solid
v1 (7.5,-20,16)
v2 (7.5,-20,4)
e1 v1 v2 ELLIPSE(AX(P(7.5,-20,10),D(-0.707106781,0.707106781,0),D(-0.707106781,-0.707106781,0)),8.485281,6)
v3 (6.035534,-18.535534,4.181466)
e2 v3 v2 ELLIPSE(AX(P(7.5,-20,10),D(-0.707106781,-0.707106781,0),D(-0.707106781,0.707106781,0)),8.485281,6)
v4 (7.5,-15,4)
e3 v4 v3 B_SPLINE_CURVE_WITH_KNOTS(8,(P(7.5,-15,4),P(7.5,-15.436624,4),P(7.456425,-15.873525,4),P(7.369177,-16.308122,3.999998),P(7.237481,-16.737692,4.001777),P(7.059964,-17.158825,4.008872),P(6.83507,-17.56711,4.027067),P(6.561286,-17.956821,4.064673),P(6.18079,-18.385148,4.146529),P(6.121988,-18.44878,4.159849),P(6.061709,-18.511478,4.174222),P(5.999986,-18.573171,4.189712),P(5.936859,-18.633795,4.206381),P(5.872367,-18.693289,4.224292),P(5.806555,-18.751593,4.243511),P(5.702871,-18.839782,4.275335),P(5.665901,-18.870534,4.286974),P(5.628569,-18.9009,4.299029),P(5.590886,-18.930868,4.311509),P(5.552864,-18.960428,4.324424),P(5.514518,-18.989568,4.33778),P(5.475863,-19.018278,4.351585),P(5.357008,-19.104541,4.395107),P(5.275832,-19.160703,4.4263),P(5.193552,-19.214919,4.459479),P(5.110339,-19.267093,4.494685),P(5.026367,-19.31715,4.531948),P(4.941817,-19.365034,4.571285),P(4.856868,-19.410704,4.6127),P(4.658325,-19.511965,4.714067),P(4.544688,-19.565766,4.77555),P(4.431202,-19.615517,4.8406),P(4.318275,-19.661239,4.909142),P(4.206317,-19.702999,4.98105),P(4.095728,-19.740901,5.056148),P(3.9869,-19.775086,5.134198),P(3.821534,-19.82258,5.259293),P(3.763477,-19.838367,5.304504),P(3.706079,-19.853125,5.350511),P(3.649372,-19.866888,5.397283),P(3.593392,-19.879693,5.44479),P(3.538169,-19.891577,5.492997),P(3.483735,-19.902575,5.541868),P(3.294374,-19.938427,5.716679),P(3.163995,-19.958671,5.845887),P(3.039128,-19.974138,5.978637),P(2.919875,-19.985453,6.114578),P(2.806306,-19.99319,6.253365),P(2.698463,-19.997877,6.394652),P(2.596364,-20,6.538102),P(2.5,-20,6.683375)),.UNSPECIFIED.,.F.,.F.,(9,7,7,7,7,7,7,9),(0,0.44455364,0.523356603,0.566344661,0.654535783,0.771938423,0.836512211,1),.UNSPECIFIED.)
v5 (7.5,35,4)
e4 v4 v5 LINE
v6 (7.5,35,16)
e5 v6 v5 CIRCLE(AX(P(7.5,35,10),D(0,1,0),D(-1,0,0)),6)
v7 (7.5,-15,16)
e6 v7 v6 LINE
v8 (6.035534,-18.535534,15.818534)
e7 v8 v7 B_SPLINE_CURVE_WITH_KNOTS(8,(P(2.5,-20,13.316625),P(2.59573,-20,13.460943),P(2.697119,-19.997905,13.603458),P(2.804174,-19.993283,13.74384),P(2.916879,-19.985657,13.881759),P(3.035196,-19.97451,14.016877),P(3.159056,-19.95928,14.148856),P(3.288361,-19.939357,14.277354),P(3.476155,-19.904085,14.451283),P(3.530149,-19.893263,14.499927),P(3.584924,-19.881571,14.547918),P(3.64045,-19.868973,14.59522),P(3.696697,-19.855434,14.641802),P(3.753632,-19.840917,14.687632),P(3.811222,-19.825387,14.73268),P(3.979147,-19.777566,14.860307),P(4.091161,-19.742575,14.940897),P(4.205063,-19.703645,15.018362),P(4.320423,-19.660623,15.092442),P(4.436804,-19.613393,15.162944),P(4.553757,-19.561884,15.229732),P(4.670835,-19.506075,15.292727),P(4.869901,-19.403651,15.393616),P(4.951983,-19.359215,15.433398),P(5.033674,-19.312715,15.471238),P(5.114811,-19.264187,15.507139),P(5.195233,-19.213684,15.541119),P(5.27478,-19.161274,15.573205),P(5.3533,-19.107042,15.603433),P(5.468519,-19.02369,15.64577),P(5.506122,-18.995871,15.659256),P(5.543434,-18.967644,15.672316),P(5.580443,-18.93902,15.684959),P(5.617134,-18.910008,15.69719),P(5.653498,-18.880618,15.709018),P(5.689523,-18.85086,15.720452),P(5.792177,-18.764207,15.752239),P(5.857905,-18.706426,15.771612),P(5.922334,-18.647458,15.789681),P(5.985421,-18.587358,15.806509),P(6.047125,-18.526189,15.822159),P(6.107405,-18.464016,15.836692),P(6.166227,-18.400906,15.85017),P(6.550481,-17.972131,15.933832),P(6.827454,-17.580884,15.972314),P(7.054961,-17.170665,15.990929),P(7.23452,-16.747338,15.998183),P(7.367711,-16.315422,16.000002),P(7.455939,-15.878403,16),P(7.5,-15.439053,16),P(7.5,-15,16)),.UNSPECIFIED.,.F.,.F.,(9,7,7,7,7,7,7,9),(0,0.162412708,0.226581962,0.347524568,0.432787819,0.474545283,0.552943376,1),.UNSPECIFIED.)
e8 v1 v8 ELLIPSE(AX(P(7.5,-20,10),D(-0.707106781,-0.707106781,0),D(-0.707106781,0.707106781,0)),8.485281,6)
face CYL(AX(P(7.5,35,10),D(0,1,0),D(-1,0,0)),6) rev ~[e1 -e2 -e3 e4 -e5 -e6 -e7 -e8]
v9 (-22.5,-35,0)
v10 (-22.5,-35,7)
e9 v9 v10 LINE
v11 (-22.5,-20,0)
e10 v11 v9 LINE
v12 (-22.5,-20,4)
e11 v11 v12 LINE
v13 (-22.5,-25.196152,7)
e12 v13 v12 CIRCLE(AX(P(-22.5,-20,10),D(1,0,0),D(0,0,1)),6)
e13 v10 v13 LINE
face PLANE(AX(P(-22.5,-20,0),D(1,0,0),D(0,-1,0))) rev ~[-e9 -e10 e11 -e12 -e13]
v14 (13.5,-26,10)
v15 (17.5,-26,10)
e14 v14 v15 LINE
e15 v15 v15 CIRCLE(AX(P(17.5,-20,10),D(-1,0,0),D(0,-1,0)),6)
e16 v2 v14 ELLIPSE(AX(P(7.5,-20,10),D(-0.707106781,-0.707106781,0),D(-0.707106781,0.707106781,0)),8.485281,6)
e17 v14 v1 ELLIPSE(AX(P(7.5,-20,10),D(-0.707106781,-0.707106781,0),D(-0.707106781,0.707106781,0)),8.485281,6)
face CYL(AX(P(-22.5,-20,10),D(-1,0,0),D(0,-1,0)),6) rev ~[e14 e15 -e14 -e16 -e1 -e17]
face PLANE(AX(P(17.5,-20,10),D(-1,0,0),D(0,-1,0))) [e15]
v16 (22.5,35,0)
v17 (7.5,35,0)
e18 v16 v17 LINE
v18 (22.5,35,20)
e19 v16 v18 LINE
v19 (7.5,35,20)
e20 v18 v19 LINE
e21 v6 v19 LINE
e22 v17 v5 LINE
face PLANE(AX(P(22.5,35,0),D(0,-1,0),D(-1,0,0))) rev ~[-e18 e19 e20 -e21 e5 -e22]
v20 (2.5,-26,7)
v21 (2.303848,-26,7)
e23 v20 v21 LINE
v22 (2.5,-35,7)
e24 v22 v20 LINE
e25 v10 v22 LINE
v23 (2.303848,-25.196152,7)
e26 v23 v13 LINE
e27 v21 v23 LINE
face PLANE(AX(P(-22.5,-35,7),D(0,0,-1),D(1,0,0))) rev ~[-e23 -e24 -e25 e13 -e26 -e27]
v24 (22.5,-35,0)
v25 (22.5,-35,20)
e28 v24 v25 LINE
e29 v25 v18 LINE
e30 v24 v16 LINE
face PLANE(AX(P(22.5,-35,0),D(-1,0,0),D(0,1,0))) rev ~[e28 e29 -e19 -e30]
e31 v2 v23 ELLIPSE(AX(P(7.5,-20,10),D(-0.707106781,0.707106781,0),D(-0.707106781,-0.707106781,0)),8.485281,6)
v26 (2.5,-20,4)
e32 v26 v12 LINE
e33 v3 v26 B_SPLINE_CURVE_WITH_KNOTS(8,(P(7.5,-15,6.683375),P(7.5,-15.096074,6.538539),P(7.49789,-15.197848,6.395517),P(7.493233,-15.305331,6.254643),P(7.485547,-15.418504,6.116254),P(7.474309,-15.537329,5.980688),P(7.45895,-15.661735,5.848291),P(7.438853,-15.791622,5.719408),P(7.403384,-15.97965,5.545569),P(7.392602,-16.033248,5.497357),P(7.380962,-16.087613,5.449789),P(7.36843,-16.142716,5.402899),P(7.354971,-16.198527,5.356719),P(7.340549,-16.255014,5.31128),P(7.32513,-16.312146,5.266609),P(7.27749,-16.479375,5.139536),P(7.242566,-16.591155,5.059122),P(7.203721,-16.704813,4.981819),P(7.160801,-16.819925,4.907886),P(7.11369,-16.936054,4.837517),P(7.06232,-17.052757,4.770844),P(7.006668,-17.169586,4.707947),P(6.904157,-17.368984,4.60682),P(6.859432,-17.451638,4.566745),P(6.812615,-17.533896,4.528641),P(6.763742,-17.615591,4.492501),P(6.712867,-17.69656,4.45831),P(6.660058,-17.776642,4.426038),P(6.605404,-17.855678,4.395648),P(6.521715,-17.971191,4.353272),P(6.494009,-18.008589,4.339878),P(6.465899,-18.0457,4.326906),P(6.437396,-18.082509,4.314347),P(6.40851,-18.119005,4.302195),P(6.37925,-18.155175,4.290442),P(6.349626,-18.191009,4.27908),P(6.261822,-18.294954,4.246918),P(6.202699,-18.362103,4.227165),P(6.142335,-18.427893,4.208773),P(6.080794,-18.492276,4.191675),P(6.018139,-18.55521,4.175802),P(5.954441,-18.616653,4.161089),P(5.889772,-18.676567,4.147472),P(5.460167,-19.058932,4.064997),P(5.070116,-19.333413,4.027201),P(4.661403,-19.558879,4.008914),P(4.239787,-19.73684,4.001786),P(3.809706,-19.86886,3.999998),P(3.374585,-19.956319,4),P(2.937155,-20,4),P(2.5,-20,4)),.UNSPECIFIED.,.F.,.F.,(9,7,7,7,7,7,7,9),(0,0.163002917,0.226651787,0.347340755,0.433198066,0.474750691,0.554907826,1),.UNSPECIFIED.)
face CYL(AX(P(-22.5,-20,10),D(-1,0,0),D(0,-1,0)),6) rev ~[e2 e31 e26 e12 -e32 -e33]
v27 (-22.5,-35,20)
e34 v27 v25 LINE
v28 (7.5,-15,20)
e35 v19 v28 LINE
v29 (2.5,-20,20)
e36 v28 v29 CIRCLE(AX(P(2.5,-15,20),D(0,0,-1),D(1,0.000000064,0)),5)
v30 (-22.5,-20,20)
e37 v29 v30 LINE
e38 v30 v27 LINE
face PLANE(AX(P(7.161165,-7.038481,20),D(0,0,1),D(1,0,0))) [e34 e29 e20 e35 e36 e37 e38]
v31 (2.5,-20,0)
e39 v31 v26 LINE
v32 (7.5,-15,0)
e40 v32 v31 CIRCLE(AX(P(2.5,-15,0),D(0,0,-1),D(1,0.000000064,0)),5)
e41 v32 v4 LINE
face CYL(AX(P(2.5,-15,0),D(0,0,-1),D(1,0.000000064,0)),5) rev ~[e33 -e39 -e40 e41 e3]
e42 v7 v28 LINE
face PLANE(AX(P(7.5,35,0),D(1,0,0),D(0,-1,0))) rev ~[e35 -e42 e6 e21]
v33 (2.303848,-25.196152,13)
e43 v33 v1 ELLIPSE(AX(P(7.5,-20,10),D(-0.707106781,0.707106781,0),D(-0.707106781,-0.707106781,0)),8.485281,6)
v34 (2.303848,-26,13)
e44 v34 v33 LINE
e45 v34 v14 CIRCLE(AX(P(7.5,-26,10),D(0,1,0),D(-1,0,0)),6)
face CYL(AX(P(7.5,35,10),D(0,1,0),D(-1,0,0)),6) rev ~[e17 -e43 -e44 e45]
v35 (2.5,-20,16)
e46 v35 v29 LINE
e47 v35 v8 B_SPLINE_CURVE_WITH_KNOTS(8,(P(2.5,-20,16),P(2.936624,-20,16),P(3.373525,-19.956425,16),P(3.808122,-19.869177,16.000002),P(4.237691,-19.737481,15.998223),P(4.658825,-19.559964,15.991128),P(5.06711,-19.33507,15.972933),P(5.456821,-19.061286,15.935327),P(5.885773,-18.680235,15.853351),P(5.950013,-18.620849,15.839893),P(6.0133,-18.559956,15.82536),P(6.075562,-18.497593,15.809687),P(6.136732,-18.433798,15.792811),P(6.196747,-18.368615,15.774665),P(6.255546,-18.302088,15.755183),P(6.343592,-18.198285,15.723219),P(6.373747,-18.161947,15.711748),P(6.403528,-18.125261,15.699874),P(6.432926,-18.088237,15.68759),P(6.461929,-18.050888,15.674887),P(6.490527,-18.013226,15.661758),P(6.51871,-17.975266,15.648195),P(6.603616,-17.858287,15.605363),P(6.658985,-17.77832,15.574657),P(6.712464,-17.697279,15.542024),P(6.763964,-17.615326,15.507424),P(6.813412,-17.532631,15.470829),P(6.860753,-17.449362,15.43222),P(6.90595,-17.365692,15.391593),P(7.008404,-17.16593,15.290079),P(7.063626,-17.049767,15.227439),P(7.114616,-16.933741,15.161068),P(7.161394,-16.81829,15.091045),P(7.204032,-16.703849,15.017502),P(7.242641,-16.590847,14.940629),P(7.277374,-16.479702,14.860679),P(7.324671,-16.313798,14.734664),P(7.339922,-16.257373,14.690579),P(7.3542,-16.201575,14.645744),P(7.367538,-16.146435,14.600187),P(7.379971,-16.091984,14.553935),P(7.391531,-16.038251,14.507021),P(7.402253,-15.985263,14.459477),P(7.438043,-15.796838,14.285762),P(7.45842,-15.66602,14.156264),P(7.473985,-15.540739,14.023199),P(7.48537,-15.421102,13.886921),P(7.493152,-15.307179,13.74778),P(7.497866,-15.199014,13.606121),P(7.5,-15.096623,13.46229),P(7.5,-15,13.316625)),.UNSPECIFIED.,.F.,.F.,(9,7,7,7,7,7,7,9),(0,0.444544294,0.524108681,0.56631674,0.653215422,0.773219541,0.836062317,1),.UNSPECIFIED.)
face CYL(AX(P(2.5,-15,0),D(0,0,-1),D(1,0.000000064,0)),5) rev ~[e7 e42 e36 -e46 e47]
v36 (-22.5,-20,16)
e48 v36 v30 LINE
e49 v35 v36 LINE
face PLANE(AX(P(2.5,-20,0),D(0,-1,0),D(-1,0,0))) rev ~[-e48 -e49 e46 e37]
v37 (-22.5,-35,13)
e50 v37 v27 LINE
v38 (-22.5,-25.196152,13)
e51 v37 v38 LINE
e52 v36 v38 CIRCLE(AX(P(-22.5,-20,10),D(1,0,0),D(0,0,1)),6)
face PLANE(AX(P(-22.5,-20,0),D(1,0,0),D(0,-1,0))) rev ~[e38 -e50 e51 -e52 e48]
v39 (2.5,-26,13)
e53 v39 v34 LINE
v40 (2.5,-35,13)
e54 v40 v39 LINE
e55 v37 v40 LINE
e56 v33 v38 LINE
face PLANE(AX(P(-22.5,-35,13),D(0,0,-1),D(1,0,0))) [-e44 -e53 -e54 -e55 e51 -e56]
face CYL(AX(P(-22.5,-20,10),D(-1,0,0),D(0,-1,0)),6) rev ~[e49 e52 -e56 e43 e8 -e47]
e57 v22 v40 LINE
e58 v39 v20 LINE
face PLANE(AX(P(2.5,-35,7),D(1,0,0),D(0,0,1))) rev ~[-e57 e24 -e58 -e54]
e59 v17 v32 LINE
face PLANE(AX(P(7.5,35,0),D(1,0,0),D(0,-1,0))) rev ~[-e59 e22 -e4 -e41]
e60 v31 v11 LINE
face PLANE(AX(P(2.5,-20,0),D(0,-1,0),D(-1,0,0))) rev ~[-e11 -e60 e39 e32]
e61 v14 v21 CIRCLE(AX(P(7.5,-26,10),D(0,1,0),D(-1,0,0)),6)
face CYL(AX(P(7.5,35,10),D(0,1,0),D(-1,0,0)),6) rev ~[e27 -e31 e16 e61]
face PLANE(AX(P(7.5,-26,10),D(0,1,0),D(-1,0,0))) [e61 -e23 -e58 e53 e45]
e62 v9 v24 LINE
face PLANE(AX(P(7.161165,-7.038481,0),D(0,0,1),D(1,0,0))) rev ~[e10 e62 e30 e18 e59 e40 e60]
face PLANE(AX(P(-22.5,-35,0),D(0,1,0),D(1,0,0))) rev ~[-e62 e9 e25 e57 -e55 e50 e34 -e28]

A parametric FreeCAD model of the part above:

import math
import FreeCAD as App
import Part
import Sketcher

V = App.Vector
Q = App.Units.Quantity


def add_polygon(sketch, points):
    """Adds a closed chain of lines whose ends are joined by coincident constraints."""
    first, n = sketch.GeometryCount, len(points)
    for a, b in zip(points, points[1:] + points[:1]):
        sketch.addGeometry(Part.LineSegment(App.Vector(*a, 0), App.Vector(*b, 0)), False)
    for i in range(n):
        sketch.addConstraint(Sketcher.Constraint("Coincident", first + i, 2, first + (i + 1) % n, 1))

doc = App.newDocument("Part")
body = doc.addObject("PartDesign::Body", "Body")

sketch1 = body.newObject("Sketcher::SketchObject", "Sketch")
sketch1.AttachmentSupport = (doc.getObject("XY_Plane"), [""])
sketch1.MapMode = "FlatFace"
sketch1.addGeometry([
    Part.LineSegment(V(22.5, 35, 0), V(7.5, 35, 0)),
    Part.LineSegment(V(7.5, 35, 0), V(7.5, -15, 0)),
    Part.ArcOfCircle(Part.Circle(V(2.5, -15, 0), V(0, 0, 1), 5), math.radians(-90), math.radians(0)),
    Part.LineSegment(V(2.5, -20, 0), V(-22.5, -20, 0)),
    Part.LineSegment(V(-22.5, -20, 0), V(-22.5, -35, 0)),
    Part.LineSegment(V(-22.5, -35, 0), V(22.5, -35, 0)),
    Part.LineSegment(V(22.5, -35, 0), V(22.5, 35, 0)),
], False)
sketch1.addConstraint([
    Sketcher.Constraint("Coincident", 0, 2, 1, 1),
    Sketcher.Constraint("Tangent", 1, 2, 2, 2),
    Sketcher.Constraint("Tangent", 2, 1, 3, 1),
    Sketcher.Constraint("Coincident", 3, 2, 4, 1),
    Sketcher.Constraint("Coincident", 4, 2, 5, 1),
    Sketcher.Constraint("Coincident", 5, 2, 6, 1),
    Sketcher.Constraint("Coincident", 6, 2, 0, 1),
    Sketcher.Constraint("Horizontal", 0),
    Sketcher.Constraint("Vertical", 1),
    Sketcher.Constraint("Horizontal", 3),
    Sketcher.Constraint("Vertical", 4),
    Sketcher.Constraint("Horizontal", 5),
    Sketcher.Constraint("Vertical", 6),
    Sketcher.Constraint("Symmetric", 4, 2, 6, 2, -1, 1),
    Sketcher.Constraint("Equal", 0, 4),
    Sketcher.Constraint("Radius", 2, Q("5 mm")),
    Sketcher.Constraint("DistanceX", 0, 2, 0, 1, Q("15 mm")),
    Sketcher.Constraint("DistanceX", 3, 2, 3, 1, Q("25 mm")),
    Sketcher.Constraint("DistanceY", 1, 2, 1, 1, Q("50 mm")),
])
pad1 = body.newObject("PartDesign::Pad", "Pad")
pad1.Profile = sketch1
pad1.Length = 20

sketch2 = body.newObject("Sketcher::SketchObject", "Sketch001")
sketch2.AttachmentSupport = (doc.getObject("YZ_Plane"), [""])
sketch2.MapMode = "FlatFace"
sketch2.AttachmentOffset = App.Placement(V(0, 0, -22.5), App.Rotation())
sketch2.addGeometry(Part.Circle(V(-20, 10, 0), V(0, 0, 1), 6), False)
sketch2.addConstraint([
    Sketcher.Constraint("Diameter", 0, Q("12 mm")),
    Sketcher.Constraint("DistanceX", 0, 3, -1, 1, Q("20 mm")),
    Sketcher.Constraint("DistanceY", -1, 1, 0, 3, Q("10 mm")),
])
pocket1 = body.newObject("PartDesign::Pocket", "Pocket")
pocket1.Profile = sketch2
pocket1.Length = 40
pocket1.Reversed = True

sketch3 = body.newObject("Sketcher::SketchObject", "Sketch002")
sketch3.AttachmentSupport = (doc.getObject("XZ_Plane"), [""])
sketch3.MapMode = "FlatFace"
sketch3.AttachmentOffset = App.Placement(V(0, 0, -35), App.Rotation())
sketch3.addGeometry(Part.Circle(V(8, 10, 0), V(0, 0, 1), 6), False)
sketch3.addConstraint([
    Sketcher.Constraint("Diameter", 0, Q("12 mm")),
    Sketcher.Constraint("DistanceY", -1, 1, 0, 3, Q("10 mm")),
    Sketcher.Constraint("DistanceX", -1, 1, 0, 3, Q("7.5 mm")),
])
pocket2 = body.newObject("PartDesign::Pocket", "Pocket001")
pocket2.Profile = sketch3
pocket2.Length = 61
pocket2.Reversed = True

sketch4 = body.newObject("Sketcher::SketchObject", "Sketch003")
sketch4.AttachmentSupport = (doc.getObject("XZ_Plane"), [""])
sketch4.MapMode = "FlatFace"
sketch4.AttachmentOffset = App.Placement(V(0, 0, 35), App.Rotation())
add_polygon(sketch4, [(-22, 13), (-22, 7), (2, 7), (2, 13)])
sketch4.addConstraint([
    Sketcher.Constraint("Vertical", 0),
    Sketcher.Constraint("Horizontal", 1),
    Sketcher.Constraint("Vertical", 2),
    Sketcher.Constraint("Horizontal", 3),
    Sketcher.Constraint("DistanceX", 1, 1, 1, 2, Q("25 mm")),
    Sketcher.Constraint("DistanceY", 0, 2, 0, 1, Q("6 mm")),
    Sketcher.Constraint("DistanceY", -1, 1, 0, 2, Q("7 mm")),
    Sketcher.Constraint("DistanceX", 0, 2, -1, 1, Q("22.5 mm")),
])
pocket3 = body.newObject("PartDesign::Pocket", "Pocket002")
pocket3.Profile = sketch4
pocket3.Length = 25

doc.recompute()
